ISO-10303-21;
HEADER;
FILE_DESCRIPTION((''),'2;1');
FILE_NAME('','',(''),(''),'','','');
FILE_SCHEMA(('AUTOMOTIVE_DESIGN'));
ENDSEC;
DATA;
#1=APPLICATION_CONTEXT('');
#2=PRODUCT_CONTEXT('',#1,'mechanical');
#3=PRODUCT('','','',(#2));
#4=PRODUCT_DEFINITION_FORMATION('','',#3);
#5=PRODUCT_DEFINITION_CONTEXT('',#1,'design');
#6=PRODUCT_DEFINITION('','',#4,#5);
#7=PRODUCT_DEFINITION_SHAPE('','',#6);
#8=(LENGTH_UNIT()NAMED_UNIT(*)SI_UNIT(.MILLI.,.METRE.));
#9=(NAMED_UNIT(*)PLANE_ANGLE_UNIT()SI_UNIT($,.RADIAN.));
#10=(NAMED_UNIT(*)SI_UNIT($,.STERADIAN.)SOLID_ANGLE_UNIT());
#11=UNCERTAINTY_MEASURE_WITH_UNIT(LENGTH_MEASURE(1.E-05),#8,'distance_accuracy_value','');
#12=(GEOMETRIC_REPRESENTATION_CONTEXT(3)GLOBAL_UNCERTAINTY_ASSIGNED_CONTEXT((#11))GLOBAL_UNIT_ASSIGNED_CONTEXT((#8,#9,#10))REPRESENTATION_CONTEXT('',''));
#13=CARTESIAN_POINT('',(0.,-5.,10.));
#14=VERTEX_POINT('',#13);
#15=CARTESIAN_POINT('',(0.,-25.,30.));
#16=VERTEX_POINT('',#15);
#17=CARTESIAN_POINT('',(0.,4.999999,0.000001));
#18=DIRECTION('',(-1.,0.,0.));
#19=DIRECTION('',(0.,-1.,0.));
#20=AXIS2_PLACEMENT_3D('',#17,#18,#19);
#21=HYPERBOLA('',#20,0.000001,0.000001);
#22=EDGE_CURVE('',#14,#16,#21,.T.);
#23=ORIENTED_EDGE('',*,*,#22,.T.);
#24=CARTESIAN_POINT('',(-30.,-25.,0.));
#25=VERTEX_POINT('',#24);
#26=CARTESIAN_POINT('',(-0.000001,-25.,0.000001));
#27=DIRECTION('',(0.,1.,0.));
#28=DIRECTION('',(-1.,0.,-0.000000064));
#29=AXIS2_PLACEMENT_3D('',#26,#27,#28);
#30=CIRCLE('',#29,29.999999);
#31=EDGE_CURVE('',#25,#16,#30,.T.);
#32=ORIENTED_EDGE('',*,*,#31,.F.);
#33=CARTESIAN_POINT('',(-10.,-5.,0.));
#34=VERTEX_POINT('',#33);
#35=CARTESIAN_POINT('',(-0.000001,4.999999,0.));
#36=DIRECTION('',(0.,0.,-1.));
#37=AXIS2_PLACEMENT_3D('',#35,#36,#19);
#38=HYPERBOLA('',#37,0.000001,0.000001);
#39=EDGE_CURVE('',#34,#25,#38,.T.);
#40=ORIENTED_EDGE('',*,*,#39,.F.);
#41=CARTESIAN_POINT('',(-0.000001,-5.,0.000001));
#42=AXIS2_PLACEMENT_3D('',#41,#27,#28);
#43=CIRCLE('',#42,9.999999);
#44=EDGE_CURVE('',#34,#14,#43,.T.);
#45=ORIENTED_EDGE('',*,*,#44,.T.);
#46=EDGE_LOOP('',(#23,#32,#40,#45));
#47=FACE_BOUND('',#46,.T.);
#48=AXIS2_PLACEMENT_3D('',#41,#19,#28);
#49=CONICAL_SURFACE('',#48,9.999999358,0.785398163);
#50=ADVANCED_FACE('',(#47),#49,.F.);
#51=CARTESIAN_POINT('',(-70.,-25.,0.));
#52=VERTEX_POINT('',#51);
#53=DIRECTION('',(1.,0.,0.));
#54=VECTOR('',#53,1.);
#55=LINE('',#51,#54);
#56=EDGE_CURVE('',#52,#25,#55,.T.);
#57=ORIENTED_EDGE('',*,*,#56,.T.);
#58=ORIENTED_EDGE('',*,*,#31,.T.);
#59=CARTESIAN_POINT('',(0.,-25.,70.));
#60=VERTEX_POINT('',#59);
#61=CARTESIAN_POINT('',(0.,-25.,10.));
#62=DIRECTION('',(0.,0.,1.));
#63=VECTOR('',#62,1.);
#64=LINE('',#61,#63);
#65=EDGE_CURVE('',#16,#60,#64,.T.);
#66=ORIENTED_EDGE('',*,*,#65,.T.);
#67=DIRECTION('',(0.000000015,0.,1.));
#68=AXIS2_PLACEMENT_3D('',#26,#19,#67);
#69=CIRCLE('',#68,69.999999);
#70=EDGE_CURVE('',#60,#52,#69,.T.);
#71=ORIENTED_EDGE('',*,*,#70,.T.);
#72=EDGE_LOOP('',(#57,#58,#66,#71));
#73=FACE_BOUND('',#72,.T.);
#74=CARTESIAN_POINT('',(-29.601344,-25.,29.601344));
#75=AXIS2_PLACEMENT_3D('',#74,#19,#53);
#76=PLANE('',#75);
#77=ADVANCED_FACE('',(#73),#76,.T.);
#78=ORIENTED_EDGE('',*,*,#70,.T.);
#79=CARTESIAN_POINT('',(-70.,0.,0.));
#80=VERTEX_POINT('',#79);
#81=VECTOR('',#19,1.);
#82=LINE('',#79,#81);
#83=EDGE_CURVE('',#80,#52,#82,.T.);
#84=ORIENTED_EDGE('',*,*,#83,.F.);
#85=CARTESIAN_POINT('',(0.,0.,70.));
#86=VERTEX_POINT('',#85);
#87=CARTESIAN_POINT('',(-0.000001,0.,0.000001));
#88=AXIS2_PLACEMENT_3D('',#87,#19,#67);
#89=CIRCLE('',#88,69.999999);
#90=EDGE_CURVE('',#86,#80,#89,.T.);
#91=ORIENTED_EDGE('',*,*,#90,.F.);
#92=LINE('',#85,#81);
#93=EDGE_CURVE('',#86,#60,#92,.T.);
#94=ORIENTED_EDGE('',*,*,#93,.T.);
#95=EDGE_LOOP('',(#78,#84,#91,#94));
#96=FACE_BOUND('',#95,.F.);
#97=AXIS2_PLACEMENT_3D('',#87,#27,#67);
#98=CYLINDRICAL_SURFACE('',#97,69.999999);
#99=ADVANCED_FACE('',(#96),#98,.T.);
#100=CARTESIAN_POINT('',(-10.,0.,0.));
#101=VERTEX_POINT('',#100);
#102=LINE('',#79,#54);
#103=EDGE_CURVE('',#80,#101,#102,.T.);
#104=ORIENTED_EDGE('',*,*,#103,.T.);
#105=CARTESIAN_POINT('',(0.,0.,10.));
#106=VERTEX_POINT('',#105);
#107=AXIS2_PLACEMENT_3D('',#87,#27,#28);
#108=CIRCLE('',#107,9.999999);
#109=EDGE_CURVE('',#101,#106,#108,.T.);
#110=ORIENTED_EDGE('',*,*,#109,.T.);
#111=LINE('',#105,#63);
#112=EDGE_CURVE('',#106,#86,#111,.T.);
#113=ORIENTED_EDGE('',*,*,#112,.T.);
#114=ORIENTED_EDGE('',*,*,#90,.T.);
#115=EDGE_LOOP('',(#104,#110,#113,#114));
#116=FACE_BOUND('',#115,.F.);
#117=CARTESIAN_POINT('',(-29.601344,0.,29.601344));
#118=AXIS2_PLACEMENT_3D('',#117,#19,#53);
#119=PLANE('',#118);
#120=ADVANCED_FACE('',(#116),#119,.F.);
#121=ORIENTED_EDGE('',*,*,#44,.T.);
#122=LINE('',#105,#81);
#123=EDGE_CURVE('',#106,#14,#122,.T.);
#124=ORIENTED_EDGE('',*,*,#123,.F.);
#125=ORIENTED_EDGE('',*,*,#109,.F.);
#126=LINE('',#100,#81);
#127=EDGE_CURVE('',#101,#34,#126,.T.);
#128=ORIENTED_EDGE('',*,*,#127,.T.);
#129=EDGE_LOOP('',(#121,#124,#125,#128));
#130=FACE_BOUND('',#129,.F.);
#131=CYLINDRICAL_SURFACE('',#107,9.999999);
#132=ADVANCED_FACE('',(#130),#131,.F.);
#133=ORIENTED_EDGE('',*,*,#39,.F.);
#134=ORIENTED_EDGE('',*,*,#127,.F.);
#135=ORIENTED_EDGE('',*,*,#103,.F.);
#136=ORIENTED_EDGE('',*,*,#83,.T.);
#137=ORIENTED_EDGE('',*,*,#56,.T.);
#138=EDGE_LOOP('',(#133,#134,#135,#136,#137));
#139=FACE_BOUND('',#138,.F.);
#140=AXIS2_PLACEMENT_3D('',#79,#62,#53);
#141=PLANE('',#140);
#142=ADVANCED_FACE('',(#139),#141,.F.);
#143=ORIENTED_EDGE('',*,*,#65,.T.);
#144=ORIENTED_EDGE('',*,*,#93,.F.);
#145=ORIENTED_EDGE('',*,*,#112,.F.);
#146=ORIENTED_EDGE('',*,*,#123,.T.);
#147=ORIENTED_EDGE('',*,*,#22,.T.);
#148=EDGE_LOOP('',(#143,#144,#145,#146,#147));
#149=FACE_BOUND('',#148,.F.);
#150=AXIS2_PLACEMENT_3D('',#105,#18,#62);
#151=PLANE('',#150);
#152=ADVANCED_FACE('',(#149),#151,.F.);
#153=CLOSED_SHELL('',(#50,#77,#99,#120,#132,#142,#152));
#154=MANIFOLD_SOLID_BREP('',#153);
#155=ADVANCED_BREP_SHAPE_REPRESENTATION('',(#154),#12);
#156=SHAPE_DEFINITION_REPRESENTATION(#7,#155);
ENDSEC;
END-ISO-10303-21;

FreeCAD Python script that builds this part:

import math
import FreeCAD as App
import Part
import Sketcher
from FreeCAD import Vector
Q = App.Units.Quantity


def edges_at(feature, points):
    """Names of the edges that pass closest to the given points."""
    edges = feature.Shape.Edges
    near = lambda p: min(range(len(edges)), key=lambda i: edges[i].distToShape(Part.Vertex(*p))[0])
    return sorted({f"Edge{near(p) + 1}" for p in points})

doc = App.newDocument("Part")
params = doc.addObject("Spreadsheet::Sheet", "Params")
for row, (alias, value) in enumerate([
    ("sketch1_radius", "69.999999 mm"),
    ("sketch1_radius2", "9.999999 mm"),
    ("pad1_length", "25 mm"),
    ("chamfer_size", "20 mm"),
], start=1):
    params.set(f"A{row}", alias)
    params.set(f"B{row}", "=" + value)
    params.setAlias(f"B{row}", alias)

body = doc.addObject("PartDesign::Body", "Body")

# Sketch on XZ plane
sketch1 = body.newObject("Sketcher::SketchObject", "Sketch")
sketch1.AttachmentSupport = (doc.getObject("XZ_Plane"), [""])
sketch1.MapMode = "FlatFace"
sketch1.addGeometry(Part.LineSegment(Vector(0, 10, 0), Vector(0, 70, 0)), False)
sketch1.addGeometry(Part.ArcOfCircle(Part.Circle(Vector(0, 0, 0), Vector(0, 0, 1), 70), math.radians(90), math.radians(180)), False)
sketch1.addGeometry(Part.LineSegment(Vector(-70, 0, 0), Vector(-10, 0, 0)), False)
sketch1.addGeometry(Part.ArcOfCircle(Part.Circle(Vector(0, 0, 0), Vector(0, 0, 1), 10), math.radians(90), math.radians(180)), False)
sketch1.addConstraint(Sketcher.Constraint("Coincident", 0, 2, 1, 1))
sketch1.addConstraint(Sketcher.Constraint("Coincident", 1, 2, 2, 1))
sketch1.addConstraint(Sketcher.Constraint("Coincident", 2, 2, 3, 2))
sketch1.addConstraint(Sketcher.Constraint("Coincident", 3, 1, 0, 1))
sketch1.addConstraint(Sketcher.Constraint("Vertical", 0))
sketch1.addConstraint(Sketcher.Constraint("Horizontal", 2))
sketch1.addConstraint(Sketcher.Constraint("Coincident", 1, 3, -1, 1))
sketch1.addConstraint(Sketcher.Constraint("Coincident", 3, 3, -1, 1))
sketch1.addConstraint(Sketcher.Constraint("PointOnObject", 0, 2, -2))
sketch1.addConstraint(Sketcher.Constraint("PointOnObject", 1, 2, -1))
sketch1.addConstraint(Sketcher.Constraint("Radius", 1, Q("69.999999 mm")))
sketch1.addConstraint(Sketcher.Constraint("Radius", 3, Q("9.999999 mm")))
sketch1.setExpression("Constraints[10]", "Params.sketch1_radius")
sketch1.setExpression("Constraints[11]", "Params.sketch1_radius2")
pad1 = body.newObject("PartDesign::Pad", "Pad")
pad1.Profile = sketch1
pad1.setExpression("Length", "Params.pad1_length")
doc.recompute()

chamfer = body.newObject("PartDesign::Chamfer", "Chamfer")
chamfer.Base = (pad1, edges_at(pad1, [(-7.071, -25, 7.071)]))
chamfer.setExpression("Size", "Params.chamfer_size")

doc.recompute()
